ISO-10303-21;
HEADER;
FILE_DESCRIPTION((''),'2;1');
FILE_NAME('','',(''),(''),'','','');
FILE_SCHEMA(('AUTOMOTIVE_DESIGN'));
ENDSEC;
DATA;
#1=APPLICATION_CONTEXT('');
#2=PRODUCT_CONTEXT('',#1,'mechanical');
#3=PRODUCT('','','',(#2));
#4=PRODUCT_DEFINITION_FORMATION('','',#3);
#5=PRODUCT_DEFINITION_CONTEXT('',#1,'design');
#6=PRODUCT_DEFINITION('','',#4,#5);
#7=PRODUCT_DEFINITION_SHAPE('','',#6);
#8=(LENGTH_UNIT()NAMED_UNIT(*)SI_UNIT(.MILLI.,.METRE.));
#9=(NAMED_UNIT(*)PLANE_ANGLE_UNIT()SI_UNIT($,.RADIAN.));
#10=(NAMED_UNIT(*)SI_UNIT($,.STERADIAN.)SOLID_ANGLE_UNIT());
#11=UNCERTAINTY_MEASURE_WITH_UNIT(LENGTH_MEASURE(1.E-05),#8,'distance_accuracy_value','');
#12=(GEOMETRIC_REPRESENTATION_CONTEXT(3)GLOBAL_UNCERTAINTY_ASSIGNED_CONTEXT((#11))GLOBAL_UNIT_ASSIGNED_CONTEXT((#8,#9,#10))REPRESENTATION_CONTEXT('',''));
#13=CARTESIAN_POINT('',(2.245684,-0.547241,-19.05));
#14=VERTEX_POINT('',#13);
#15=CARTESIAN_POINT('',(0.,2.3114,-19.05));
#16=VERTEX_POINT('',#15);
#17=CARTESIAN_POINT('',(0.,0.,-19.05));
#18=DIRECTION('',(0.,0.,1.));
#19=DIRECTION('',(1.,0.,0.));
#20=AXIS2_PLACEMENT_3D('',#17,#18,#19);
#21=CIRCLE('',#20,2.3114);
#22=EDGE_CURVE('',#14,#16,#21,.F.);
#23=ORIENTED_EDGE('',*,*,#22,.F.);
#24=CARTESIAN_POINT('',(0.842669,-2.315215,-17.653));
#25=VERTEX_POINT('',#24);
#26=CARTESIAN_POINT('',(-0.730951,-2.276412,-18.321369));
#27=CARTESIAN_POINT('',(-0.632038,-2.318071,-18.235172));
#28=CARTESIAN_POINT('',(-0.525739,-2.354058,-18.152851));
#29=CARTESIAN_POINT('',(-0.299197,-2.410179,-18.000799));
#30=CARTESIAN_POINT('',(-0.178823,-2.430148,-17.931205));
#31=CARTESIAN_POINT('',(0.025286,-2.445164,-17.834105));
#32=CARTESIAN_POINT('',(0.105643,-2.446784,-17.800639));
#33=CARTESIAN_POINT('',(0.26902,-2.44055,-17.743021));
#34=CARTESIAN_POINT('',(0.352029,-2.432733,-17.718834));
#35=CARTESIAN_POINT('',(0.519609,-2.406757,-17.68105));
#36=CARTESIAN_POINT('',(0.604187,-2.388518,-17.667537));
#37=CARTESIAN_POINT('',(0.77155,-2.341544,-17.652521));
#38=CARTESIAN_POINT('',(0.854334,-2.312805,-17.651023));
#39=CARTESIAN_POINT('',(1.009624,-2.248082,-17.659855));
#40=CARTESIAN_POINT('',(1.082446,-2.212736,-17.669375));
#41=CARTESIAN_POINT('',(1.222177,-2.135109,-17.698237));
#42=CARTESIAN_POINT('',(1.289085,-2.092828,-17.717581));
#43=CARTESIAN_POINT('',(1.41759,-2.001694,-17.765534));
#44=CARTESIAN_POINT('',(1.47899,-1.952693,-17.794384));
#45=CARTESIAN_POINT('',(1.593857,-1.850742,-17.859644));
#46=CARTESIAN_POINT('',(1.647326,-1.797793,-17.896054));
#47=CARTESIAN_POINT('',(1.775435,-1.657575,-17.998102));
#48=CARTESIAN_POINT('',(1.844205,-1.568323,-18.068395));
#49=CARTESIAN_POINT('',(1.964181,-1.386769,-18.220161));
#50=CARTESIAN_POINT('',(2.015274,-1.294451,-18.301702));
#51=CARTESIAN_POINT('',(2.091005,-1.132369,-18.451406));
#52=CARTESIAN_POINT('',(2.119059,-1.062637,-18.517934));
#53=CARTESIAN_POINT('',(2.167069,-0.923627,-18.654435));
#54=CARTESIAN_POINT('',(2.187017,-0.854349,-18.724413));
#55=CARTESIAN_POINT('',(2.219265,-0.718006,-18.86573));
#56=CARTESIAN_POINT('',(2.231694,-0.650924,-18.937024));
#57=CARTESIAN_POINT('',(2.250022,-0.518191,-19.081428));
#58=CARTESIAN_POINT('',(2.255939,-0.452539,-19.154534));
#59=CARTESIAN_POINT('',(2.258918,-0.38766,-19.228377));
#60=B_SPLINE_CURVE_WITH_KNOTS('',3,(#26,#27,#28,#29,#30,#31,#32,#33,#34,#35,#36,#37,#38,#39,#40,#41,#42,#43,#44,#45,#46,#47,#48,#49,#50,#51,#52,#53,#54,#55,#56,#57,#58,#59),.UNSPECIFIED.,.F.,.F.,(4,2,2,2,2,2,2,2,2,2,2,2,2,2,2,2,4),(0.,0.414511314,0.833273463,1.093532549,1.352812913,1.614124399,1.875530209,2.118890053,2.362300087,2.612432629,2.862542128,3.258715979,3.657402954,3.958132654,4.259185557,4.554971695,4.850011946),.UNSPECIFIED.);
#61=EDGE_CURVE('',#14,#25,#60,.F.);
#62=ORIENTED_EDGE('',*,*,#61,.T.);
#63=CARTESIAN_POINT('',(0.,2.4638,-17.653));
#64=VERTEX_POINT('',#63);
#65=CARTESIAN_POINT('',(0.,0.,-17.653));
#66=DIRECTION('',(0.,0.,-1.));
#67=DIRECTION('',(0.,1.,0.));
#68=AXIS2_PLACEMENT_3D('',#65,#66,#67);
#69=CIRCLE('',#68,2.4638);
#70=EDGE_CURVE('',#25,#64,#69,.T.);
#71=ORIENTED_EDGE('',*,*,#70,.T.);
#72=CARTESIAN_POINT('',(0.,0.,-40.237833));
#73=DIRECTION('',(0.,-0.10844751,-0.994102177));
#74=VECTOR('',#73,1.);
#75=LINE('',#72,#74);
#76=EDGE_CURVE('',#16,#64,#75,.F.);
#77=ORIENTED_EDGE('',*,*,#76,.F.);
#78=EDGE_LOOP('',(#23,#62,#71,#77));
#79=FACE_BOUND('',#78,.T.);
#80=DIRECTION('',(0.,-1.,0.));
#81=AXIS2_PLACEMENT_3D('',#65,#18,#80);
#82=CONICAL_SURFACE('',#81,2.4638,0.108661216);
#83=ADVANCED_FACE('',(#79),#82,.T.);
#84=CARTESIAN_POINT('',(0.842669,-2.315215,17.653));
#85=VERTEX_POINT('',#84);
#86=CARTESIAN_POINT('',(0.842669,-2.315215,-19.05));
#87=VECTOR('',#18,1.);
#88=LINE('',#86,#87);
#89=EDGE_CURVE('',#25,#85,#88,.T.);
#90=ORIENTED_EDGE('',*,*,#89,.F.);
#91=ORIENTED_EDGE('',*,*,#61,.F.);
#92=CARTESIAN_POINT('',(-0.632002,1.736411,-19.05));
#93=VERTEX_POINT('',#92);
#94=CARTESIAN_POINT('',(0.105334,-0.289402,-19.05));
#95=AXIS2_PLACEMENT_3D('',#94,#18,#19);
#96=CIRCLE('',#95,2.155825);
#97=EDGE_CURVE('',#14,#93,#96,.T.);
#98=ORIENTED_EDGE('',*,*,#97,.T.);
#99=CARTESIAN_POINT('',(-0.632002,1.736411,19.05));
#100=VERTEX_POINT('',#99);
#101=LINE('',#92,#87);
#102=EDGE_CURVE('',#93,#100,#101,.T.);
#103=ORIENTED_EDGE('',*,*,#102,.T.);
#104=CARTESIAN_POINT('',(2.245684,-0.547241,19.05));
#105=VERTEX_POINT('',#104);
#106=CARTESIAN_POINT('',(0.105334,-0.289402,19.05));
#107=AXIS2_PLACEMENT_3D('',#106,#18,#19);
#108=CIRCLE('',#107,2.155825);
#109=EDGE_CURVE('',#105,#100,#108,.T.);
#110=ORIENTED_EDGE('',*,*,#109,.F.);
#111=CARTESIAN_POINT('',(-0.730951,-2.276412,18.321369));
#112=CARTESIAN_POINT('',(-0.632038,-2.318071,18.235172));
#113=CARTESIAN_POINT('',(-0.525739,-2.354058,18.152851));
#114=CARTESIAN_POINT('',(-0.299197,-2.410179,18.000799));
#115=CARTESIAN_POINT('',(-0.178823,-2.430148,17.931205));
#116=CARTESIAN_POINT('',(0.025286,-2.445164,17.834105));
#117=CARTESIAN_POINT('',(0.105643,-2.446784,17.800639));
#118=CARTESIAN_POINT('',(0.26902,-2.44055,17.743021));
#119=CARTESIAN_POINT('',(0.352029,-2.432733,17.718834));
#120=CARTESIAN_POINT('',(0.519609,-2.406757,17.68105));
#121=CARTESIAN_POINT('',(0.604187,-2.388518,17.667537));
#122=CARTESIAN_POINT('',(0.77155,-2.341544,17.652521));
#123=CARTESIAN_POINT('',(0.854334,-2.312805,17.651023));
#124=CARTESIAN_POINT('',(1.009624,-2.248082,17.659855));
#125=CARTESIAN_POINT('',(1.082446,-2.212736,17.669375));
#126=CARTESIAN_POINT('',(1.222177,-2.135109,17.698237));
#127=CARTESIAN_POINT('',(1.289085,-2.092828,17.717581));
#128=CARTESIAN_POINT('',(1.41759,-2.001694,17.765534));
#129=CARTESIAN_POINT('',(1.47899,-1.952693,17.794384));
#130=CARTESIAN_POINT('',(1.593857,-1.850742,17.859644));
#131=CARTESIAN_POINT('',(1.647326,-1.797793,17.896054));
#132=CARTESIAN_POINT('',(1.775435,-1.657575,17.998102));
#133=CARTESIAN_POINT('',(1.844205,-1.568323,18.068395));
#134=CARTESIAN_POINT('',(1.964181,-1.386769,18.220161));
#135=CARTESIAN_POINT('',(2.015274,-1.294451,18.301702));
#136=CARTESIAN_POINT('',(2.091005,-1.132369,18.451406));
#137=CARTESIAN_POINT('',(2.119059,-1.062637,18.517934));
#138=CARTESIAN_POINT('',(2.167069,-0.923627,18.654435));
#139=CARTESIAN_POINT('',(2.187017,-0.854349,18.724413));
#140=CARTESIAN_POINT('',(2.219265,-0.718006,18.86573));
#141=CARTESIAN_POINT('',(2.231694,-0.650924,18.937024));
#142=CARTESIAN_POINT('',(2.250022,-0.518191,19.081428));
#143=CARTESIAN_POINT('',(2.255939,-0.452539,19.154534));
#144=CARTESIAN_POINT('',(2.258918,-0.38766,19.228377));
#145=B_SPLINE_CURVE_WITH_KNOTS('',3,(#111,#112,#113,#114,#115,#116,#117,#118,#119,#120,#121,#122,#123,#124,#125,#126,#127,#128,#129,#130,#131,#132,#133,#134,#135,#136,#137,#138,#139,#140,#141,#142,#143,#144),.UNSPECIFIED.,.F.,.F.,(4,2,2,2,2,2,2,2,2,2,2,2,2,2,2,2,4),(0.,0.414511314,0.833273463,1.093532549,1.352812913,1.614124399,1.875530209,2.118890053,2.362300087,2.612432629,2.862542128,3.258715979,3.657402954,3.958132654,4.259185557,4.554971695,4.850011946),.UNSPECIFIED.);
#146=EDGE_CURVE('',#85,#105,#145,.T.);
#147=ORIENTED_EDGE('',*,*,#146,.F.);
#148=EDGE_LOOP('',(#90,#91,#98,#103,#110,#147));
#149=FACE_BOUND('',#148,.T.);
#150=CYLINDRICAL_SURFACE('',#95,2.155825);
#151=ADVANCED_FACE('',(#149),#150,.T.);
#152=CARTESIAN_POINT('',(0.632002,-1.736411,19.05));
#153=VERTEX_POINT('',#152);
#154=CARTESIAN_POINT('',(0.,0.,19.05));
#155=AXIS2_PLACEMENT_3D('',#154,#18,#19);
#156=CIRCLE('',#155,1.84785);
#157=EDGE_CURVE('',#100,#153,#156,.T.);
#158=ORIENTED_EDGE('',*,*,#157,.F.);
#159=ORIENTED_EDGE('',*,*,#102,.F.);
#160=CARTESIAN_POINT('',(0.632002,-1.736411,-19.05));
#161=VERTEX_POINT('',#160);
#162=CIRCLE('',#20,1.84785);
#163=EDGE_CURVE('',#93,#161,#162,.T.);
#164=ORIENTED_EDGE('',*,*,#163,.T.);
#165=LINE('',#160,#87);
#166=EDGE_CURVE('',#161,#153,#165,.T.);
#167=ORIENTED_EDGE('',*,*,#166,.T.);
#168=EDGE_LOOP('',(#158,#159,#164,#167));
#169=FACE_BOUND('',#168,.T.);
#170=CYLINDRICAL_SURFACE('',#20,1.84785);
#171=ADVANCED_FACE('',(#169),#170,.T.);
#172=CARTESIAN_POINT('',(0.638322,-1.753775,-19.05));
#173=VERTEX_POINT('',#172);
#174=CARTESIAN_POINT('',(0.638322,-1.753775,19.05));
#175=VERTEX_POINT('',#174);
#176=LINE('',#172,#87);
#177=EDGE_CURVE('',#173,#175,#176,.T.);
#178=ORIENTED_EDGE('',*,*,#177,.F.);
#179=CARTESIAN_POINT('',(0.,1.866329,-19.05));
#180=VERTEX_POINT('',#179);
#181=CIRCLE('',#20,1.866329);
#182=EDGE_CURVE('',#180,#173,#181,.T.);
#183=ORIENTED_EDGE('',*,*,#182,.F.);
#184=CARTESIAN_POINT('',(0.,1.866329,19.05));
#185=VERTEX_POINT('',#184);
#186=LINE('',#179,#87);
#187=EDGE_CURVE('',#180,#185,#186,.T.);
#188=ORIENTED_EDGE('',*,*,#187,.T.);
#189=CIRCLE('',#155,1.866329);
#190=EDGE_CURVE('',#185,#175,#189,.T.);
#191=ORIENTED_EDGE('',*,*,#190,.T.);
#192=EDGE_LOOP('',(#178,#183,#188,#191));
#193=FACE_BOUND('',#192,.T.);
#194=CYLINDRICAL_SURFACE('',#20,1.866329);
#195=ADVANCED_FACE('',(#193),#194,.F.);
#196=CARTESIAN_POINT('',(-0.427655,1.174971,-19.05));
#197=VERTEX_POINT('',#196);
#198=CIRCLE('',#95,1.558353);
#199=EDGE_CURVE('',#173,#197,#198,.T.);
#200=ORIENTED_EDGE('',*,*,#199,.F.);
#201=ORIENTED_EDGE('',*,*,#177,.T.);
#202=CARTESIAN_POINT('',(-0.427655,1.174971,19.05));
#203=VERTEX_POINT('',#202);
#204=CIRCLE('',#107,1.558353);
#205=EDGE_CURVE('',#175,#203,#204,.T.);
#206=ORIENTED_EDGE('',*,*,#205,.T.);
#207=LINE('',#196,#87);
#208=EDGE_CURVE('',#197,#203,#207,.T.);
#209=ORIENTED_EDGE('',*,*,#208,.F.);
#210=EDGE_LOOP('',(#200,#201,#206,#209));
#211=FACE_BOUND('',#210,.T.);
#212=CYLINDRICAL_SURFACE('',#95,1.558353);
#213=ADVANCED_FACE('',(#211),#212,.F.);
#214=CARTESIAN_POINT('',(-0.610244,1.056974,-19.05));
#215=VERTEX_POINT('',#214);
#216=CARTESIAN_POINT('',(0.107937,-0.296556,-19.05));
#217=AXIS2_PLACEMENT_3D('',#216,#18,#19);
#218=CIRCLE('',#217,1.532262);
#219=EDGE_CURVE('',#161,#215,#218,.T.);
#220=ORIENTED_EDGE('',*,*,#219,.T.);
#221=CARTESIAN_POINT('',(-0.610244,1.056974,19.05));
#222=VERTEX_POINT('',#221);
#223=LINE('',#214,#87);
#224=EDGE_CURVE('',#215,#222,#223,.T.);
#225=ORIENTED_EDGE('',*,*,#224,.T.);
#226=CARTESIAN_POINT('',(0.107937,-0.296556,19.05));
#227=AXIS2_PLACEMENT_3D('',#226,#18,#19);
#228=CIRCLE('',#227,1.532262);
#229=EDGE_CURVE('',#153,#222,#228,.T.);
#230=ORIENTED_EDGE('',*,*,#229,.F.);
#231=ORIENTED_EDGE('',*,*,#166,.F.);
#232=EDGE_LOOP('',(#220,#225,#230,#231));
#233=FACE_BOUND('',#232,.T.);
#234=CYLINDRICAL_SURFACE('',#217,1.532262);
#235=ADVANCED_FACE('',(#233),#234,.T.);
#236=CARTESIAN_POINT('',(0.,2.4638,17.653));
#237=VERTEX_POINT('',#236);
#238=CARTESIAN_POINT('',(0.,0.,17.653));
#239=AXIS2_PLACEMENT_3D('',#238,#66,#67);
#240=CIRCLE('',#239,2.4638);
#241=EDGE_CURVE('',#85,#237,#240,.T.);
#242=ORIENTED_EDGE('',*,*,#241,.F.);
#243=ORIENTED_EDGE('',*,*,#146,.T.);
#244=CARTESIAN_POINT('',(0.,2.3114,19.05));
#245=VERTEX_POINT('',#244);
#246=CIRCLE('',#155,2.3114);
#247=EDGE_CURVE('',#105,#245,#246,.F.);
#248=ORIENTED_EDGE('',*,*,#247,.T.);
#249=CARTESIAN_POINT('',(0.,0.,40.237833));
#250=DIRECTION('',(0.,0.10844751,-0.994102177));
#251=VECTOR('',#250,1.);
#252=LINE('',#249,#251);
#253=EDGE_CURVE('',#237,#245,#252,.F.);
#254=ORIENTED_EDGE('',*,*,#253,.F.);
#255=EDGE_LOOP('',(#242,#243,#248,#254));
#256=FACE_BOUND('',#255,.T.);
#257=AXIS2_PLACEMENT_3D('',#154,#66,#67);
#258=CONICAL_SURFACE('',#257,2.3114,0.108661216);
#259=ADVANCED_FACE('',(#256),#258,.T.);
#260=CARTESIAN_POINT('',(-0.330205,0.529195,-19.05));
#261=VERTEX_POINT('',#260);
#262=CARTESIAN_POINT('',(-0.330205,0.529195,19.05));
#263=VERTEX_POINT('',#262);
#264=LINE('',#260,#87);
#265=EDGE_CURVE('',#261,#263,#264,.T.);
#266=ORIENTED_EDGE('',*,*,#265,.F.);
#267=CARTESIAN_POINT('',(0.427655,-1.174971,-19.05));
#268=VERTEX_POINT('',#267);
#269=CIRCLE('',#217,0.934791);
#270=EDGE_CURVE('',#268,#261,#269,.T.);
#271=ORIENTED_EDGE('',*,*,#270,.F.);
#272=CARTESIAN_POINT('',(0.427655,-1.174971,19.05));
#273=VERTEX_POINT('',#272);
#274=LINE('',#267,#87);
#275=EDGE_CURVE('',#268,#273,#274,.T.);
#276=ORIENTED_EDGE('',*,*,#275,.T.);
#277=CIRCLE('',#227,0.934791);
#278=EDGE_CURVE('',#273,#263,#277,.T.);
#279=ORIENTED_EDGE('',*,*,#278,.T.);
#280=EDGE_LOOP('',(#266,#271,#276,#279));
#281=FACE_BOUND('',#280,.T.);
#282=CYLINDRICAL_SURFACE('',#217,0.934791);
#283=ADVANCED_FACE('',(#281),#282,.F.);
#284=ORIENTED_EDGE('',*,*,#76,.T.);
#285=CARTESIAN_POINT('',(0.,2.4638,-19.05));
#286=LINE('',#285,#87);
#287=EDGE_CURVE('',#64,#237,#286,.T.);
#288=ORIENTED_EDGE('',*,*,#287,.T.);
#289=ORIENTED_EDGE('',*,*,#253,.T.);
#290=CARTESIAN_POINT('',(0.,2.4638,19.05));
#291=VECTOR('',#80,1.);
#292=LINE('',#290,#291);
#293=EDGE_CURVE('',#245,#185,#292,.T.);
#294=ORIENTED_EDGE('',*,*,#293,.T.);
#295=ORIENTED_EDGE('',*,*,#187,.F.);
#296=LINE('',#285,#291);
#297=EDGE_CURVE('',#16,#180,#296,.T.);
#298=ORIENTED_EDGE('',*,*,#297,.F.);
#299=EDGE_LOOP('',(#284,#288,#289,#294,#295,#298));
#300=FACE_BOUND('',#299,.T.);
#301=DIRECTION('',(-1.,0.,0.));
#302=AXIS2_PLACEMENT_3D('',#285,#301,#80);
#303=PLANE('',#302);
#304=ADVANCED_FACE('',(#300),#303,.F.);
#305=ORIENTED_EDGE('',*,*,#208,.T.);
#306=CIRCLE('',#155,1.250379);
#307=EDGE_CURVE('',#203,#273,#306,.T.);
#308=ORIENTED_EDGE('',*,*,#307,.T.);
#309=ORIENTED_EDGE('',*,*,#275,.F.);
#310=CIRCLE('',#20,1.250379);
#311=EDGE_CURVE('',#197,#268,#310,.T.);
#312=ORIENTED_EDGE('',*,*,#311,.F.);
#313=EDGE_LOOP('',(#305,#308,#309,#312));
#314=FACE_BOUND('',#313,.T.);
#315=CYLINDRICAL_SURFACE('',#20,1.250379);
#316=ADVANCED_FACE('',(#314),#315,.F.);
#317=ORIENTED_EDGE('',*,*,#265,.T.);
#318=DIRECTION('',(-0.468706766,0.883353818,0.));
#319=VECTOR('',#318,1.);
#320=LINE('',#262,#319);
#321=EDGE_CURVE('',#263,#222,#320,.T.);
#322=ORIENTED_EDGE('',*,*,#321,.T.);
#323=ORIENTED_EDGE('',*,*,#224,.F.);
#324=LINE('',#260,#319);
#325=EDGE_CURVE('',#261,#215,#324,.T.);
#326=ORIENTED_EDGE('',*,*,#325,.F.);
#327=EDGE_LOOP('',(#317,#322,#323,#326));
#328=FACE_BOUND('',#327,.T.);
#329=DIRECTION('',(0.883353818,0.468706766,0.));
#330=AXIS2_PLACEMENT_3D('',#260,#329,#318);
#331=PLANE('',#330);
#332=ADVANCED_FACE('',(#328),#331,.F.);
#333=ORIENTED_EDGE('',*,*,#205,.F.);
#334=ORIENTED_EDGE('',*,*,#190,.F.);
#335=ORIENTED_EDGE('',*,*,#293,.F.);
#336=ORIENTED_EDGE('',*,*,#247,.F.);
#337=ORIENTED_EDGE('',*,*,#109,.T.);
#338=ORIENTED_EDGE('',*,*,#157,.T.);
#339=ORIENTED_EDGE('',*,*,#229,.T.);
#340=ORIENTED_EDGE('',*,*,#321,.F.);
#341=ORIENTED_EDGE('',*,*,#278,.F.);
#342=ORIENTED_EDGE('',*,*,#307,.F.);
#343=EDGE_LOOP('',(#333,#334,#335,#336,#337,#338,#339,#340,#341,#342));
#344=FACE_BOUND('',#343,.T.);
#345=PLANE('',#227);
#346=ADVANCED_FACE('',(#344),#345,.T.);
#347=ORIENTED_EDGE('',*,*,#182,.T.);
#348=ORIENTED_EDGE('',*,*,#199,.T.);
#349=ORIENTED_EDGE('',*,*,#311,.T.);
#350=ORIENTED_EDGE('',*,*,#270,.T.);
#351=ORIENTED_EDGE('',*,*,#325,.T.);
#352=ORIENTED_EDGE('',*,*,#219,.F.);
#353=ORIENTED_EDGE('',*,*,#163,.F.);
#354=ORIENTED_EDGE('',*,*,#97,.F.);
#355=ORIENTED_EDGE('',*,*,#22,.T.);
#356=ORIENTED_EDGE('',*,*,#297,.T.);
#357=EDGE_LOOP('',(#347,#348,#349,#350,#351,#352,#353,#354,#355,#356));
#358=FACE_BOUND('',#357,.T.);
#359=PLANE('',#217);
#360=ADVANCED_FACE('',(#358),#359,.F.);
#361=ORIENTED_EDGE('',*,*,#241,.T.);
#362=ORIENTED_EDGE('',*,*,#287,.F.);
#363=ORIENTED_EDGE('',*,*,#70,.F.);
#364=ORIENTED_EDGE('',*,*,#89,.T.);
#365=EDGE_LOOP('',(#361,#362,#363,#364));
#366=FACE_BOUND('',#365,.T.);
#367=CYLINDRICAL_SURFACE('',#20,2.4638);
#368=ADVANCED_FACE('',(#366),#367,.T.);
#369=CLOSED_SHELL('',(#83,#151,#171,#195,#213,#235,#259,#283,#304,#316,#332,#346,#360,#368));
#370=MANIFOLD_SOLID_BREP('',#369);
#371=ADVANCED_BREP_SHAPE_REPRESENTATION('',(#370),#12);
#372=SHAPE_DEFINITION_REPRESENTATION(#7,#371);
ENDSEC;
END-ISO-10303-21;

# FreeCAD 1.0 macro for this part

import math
import FreeCAD as App
import Part
import Sketcher

V = App.Vector
Q = App.Units.Quantity


def add_polygon(sketch, points):
    """Adds a closed chain of lines whose ends are joined by coincident constraints."""
    first, n = sketch.GeometryCount, len(points)
    for a, b in zip(points, points[1:] + points[:1]):
        sketch.addGeometry(Part.LineSegment(App.Vector(*a, 0), App.Vector(*b, 0)), False)
    for i in range(n):
        sketch.addConstraint(Sketcher.Constraint("Coincident", first + i, 2, first + (i + 1) % n, 1))

doc = App.newDocument("Part")
body = doc.addObject("PartDesign::Body", "Body")

sketch1 = body.newObject("Sketcher::SketchObject", "Sketch")
sketch1.AttachmentSupport = (doc.getObject("XY_Plane"), [""])
sketch1.MapMode = "FlatFace"
sketch1.addGeometry([
    Part.ArcOfCircle(Part.Circle(V(0, 0, 0), V(0, 0, 1), 2.5), math.radians(90), math.radians(290)),
    Part.ArcOfCircle(Part.Circle(V(0.1, -0.3, 0), V(0, 0, 1), 2.2), math.radians(-70), math.radians(110)),
    Part.ArcOfCircle(Part.Circle(V(0, 0, 0), V(0, 0, 1), 1.8), math.radians(110), math.radians(290)),
    Part.ArcOfCircle(Part.Circle(V(0.1, -0.3, 0), V(0, 0, 1), 1.5), math.radians(-70), math.radians(118)),
    Part.LineSegment(V(-0.6, 1.1, 0), V(-0.3, 0.5, 0)),
    Part.ArcOfCircle(Part.Circle(V(0.1, -0.3, 0), V(0, 0, 1), 0.9), math.radians(-70), math.radians(118)),
    Part.ArcOfCircle(Part.Circle(V(0, 0, 0), V(0, 0, 1), 1.3), math.radians(110), math.radians(290)),
    Part.ArcOfCircle(Part.Circle(V(0.1, -0.3, 0), V(0, 0, 1), 1.6), math.radians(-70), math.radians(110)),
    Part.ArcOfCircle(Part.Circle(V(0, 0, 0), V(0, 0, 1), 1.9), math.radians(90), math.radians(290)),
    Part.LineSegment(V(0, 1.9, 0), V(0, 2.5, 0)),
], False)
sketch1.addConstraint([
    Sketcher.Constraint("Tangent", 0, 2, 1, 1),
    Sketcher.Constraint("Tangent", 1, 2, 2, 1),
    Sketcher.Constraint("Tangent", 2, 2, 3, 1),
    Sketcher.Constraint("Coincident", 3, 2, 4, 1),
    Sketcher.Constraint("Coincident", 4, 2, 5, 2),
    Sketcher.Constraint("Tangent", 5, 1, 6, 2),
    Sketcher.Constraint("Tangent", 6, 1, 7, 2),
    Sketcher.Constraint("Tangent", 7, 1, 8, 2),
    Sketcher.Constraint("Coincident", 8, 1, 9, 1),
    Sketcher.Constraint("Coincident", 9, 2, 0, 1),
    Sketcher.Constraint("Vertical", 9),
    Sketcher.Constraint("Coincident", 0, 3, -1, 1),
    Sketcher.Constraint("Coincident", 2, 3, -1, 1),
    Sketcher.Constraint("Coincident", 6, 3, -1, 1),
    Sketcher.Constraint("Coincident", 8, 3, -1, 1),
    Sketcher.Constraint("Coincident", 5, 3, 3, 3),
    Sketcher.Constraint("Coincident", 7, 3, 1, 3),
    Sketcher.Constraint("PointOnObject", 8, 1, -2),
    Sketcher.Constraint("Radius", 0, Q("0.097 in")),
    Sketcher.Constraint("Radius", 2, 1.84785),
    Sketcher.Constraint("Radius", 5, 0.934791),
    Sketcher.Constraint("Radius", 6, 1.250379),
    Sketcher.Constraint("DistanceY", 1, 3, -1, 1, 0.289402),
    Sketcher.Constraint("DistanceX", -1, 1, 2, 2, 0.632002),
    Sketcher.Constraint("DistanceX", 3, 2, 4, 2, 0.280039),
    Sketcher.Constraint("DistanceX", 3, 2, 6, 1, 0.18259),
])
pad1 = body.newObject("PartDesign::Pad", "Pad")
pad1.Profile = sketch1
pad1.Length = Q("1.5 in")
pad1.Midplane = True

sketch2 = body.newObject("Sketcher::SketchObject", "Sketch001")
sketch2.AttachmentSupport = (doc.getObject("YZ_Plane"), [""])
sketch2.MapMode = "FlatFace"
add_polygon(sketch2, [(2.46, 19.05), (2.31, 19.05), (2.46, 17.65)])
add_polygon(sketch2, [(2.46, -19.05), (2.46, -17.65), (2.31, -19.05)])
sketch2.addConstraint([
    Sketcher.Constraint("Horizontal", 0),
    Sketcher.Constraint("Vertical", 2),
    Sketcher.Constraint("Vertical", 3),
    Sketcher.Constraint("Horizontal", 5),
    Sketcher.Constraint("Symmetric", 1, 2, 3, 2, -1),
    Sketcher.Constraint("Symmetric", 0, 2, 4, 2, -1),
    Sketcher.Constraint("DistanceY", 4, 2, 0, 2, Q("1.5 in")),
    Sketcher.Constraint("DistanceX", 0, 2, 0, 1, Q("0.006 in")),
    Sketcher.Constraint("DistanceY", 2, 1, 2, 2, Q("0.055 in")),
    Sketcher.Constraint("DistanceX", -1, 1, 0, 2, Q("0.091 in")),
])
groove = body.newObject("PartDesign::Groove", "Groove")
groove.Profile = sketch2
groove.ReferenceAxis = (sketch2, ["V_Axis"])
groove.Angle = 360

doc.recompute()
